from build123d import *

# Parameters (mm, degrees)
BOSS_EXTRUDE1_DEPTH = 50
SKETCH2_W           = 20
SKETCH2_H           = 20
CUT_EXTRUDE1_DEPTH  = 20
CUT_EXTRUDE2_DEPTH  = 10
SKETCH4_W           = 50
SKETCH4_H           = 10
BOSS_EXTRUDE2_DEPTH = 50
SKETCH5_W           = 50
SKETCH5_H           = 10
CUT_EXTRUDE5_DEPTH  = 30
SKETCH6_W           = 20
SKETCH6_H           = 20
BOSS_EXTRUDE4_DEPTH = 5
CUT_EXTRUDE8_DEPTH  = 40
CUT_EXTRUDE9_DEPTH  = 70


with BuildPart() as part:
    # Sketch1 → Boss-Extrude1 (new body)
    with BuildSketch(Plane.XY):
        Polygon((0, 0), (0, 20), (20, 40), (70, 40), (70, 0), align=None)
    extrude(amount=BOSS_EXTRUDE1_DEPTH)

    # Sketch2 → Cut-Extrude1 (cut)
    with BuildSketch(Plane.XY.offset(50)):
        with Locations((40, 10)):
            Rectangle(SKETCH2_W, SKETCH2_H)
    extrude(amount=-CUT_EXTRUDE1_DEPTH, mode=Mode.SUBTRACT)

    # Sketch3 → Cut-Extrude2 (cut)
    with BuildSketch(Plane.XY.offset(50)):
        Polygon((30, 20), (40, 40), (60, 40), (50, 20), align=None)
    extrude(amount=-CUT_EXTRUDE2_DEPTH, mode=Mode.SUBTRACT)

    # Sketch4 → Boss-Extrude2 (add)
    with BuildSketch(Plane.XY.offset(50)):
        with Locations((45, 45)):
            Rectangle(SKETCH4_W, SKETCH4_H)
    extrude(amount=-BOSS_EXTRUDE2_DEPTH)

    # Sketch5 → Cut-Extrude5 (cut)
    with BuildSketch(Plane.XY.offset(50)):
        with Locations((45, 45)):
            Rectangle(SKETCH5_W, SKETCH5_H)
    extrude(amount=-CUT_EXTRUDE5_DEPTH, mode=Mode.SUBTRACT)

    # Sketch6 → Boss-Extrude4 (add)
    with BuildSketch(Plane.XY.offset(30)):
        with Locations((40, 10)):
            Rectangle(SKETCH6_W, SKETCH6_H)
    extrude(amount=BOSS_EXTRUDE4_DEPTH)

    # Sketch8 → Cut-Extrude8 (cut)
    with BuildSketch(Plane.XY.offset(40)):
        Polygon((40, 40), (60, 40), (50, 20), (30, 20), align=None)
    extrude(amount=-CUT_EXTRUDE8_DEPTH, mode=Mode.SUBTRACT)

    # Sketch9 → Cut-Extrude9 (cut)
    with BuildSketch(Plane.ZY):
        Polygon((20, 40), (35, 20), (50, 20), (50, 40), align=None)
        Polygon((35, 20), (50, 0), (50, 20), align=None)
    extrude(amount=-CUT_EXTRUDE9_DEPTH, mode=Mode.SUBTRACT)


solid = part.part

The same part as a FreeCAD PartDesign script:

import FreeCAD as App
import Part
import Sketcher
from FreeCAD import Vector

doc = App.newDocument("Part")
body = doc.addObject("PartDesign::Body", "Body")

# Sketch on XY plane
sketch1 = doc.addObject("Sketcher::SketchObject", "Sketch")
body.addObject(sketch1)
sketch1.AttachmentSupport = (doc.XY_Plane, [""])
sketch1.MapMode = "FlatFace"
sketch1.addGeometry(Part.LineSegment(Vector(0, 20, 0), Vector(0, 0, 0)), False)
sketch1.addGeometry(Part.LineSegment(Vector(0, 0, 0), Vector(70, 0, 0)), False)
sketch1.addGeometry(Part.LineSegment(Vector(70, 0, 0), Vector(70, 40, 0)), False)
sketch1.addGeometry(Part.LineSegment(Vector(70, 40, 0), Vector(20, 40, 0)), False)
sketch1.addGeometry(Part.LineSegment(Vector(20, 40, 0), Vector(0, 20, 0)), False)
sketch1.addConstraint(Sketcher.Constraint("Coincident", 0, 2, 1, 1))
sketch1.addConstraint(Sketcher.Constraint("Coincident", 1, 2, 2, 1))
sketch1.addConstraint(Sketcher.Constraint("Coincident", 2, 2, 3, 1))
sketch1.addConstraint(Sketcher.Constraint("Coincident", 3, 2, 4, 1))
sketch1.addConstraint(Sketcher.Constraint("Coincident", 4, 2, 0, 1))
sketch1.addConstraint(Sketcher.Constraint("Vertical", 0))
sketch1.addConstraint(Sketcher.Constraint("Horizontal", 1))
sketch1.addConstraint(Sketcher.Constraint("Vertical", 2))
sketch1.addConstraint(Sketcher.Constraint("Horizontal", 3))
sketch1.addConstraint(Sketcher.Constraint("Coincident", 0, 2, -1, 1))
sketch1.addConstraint(Sketcher.Constraint("DistanceX", 1, 1, 1, 2, 70.0))
sketch1.addConstraint(Sketcher.Constraint("DistanceX", 3, 2, 3, 1, 50.0))
sketch1.addConstraint(Sketcher.Constraint("DistanceY", 0, 2, 0, 1, 20.0))
sketch1.addConstraint(Sketcher.Constraint("DistanceY", 2, 1, 2, 2, 40.0))
pad1 = doc.addObject("PartDesign::Pad", "Pad")
body.addObject(pad1)
pad1.Profile = sketch1
pad1.Length = 50

# Sketch on XY plane
sketch2 = doc.addObject("Sketcher::SketchObject", "Sketch001")
body.addObject(sketch2)
sketch2.AttachmentSupport = (doc.XY_Plane, [""])
sketch2.MapMode = "FlatFace"
sketch2.AttachmentOffset = App.Placement(Vector(0, 0, 50), App.Rotation())
sketch2.addGeometry(Part.LineSegment(Vector(30, 20, 0), Vector(30, 0, 0)), False)
sketch2.addGeometry(Part.LineSegment(Vector(30, 0, 0), Vector(50, 0, 0)), False)
sketch2.addGeometry(Part.LineSegment(Vector(50, 0, 0), Vector(50, 20, 0)), False)
sketch2.addGeometry(Part.LineSegment(Vector(50, 20, 0), Vector(30, 20, 0)), False)
sketch2.addConstraint(Sketcher.Constraint("Coincident", 0, 2, 1, 1))
sketch2.addConstraint(Sketcher.Constraint("Coincident", 1, 2, 2, 1))
sketch2.addConstraint(Sketcher.Constraint("Coincident", 2, 2, 3, 1))
sketch2.addConstraint(Sketcher.Constraint("Coincident", 3, 2, 0, 1))
sketch2.addConstraint(Sketcher.Constraint("Vertical", 0))
sketch2.addConstraint(Sketcher.Constraint("Horizontal", 1))
sketch2.addConstraint(Sketcher.Constraint("Vertical", 2))
sketch2.addConstraint(Sketcher.Constraint("Horizontal", 3))
sketch2.addConstraint(Sketcher.Constraint("PointOnObject", 0, 2, -1))
sketch2.addConstraint(Sketcher.Constraint("Equal", 3, 0))
sketch2.addConstraint(Sketcher.Constraint("DistanceX", 1, 1, 1, 2, 20.0))
sketch2.addConstraint(Sketcher.Constraint("DistanceX", -1, 1, 0, 2, 30.0))
pocket1 = doc.addObject("PartDesign::Pocket", "Pocket")
body.addObject(pocket1)
pocket1.Profile = sketch2
pocket1.Length = 20

# Sketch on XY plane
sketch3 = doc.addObject("Sketcher::SketchObject", "Sketch002")
body.addObject(sketch3)
sketch3.AttachmentSupport = (doc.XY_Plane, [""])
sketch3.MapMode = "FlatFace"
sketch3.AttachmentOffset = App.Placement(Vector(0, 0, 50), App.Rotation())
sketch3.addGeometry(Part.LineSegment(Vector(40, 40, 0), Vector(30, 20, 0)), False)
sketch3.addGeometry(Part.LineSegment(Vector(30, 20, 0), Vector(50, 20, 0)), False)
sketch3.addGeometry(Part.LineSegment(Vector(50, 20, 0), Vector(60, 40, 0)), False)
sketch3.addGeometry(Part.LineSegment(Vector(60, 40, 0), Vector(40, 40, 0)), False)
sketch3.addConstraint(Sketcher.Constraint("Coincident", 0, 2, 1, 1))
sketch3.addConstraint(Sketcher.Constraint("Coincident", 1, 2, 2, 1))
sketch3.addConstraint(Sketcher.Constraint("Coincident", 2, 2, 3, 1))
sketch3.addConstraint(Sketcher.Constraint("Coincident", 3, 2, 0, 1))
sketch3.addConstraint(Sketcher.Constraint("Horizontal", 1))
sketch3.addConstraint(Sketcher.Constraint("Horizontal", 3))
sketch3.addConstraint(Sketcher.Constraint("Parallel", 0, 2))
sketch3.addConstraint(Sketcher.Constraint("DistanceX", 1, 1, 1, 2, 20.0))
sketch3.addConstraint(Sketcher.Constraint("DistanceX", -1, 1, 0, 2, 30.0))
sketch3.addConstraint(Sketcher.Constraint("DistanceY", -1, 1, 0, 2, 20.0))
sketch3.addConstraint(Sketcher.Constraint("DistanceX", -1, 1, 2, 2, 60.0))
sketch3.addConstraint(Sketcher.Constraint("DistanceY", -1, 1, 2, 2, 40.0))
pocket2 = doc.addObject("PartDesign::Pocket", "Pocket001")
body.addObject(pocket2)
pocket2.Profile = sketch3
pocket2.Length = 10

# Sketch on XY plane
sketch4 = doc.addObject("Sketcher::SketchObject", "Sketch003")
body.addObject(sketch4)
sketch4.AttachmentSupport = (doc.XY_Plane, [""])
sketch4.MapMode = "FlatFace"
sketch4.AttachmentOffset = App.Placement(Vector(0, 0, 50), App.Rotation())
sketch4.addGeometry(Part.LineSegment(Vector(20, 50, 0), Vector(20, 40, 0)), False)
sketch4.addGeometry(Part.LineSegment(Vector(20, 40, 0), Vector(70, 40, 0)), False)
sketch4.addGeometry(Part.LineSegment(Vector(70, 40, 0), Vector(70, 50, 0)), False)
sketch4.addGeometry(Part.LineSegment(Vector(70, 50, 0), Vector(20, 50, 0)), False)
sketch4.addConstraint(Sketcher.Constraint("Coincident", 0, 2, 1, 1))
sketch4.addConstraint(Sketcher.Constraint("Coincident", 1, 2, 2, 1))
sketch4.addConstraint(Sketcher.Constraint("Coincident", 2, 2, 3, 1))
sketch4.addConstraint(Sketcher.Constraint("Coincident", 3, 2, 0, 1))
sketch4.addConstraint(Sketcher.Constraint("Vertical", 0))
sketch4.addConstraint(Sketcher.Constraint("Horizontal", 1))
sketch4.addConstraint(Sketcher.Constraint("Vertical", 2))
sketch4.addConstraint(Sketcher.Constraint("Horizontal", 3))
sketch4.addConstraint(Sketcher.Constraint("DistanceX", 1, 1, 1, 2, 50.0))
sketch4.addConstraint(Sketcher.Constraint("DistanceY", 0, 2, 0, 1, 10.0))
sketch4.addConstraint(Sketcher.Constraint("DistanceX", -1, 1, 0, 2, 20.0))
sketch4.addConstraint(Sketcher.Constraint("DistanceY", -1, 1, 0, 2, 40.0))
pad2 = doc.addObject("PartDesign::Pad", "Pad001")
body.addObject(pad2)
pad2.Profile = sketch4
pad2.Length = 50
pad2.Reversed = True

# Sketch on XY plane
sketch5 = doc.addObject("Sketcher::SketchObject", "Sketch004")
body.addObject(sketch5)
sketch5.AttachmentSupport = (doc.XY_Plane, [""])
sketch5.MapMode = "FlatFace"
sketch5.AttachmentOffset = App.Placement(Vector(0, 0, 50), App.Rotation())
sketch5.addGeometry(Part.LineSegment(Vector(20, 50, 0), Vector(20, 40, 0)), False)
sketch5.addGeometry(Part.LineSegment(Vector(20, 40, 0), Vector(70, 40, 0)), False)
sketch5.addGeometry(Part.LineSegment(Vector(70, 40, 0), Vector(70, 50, 0)), False)
sketch5.addGeometry(Part.LineSegment(Vector(70, 50, 0), Vector(20, 50, 0)), False)
sketch5.addConstraint(Sketcher.Constraint("Coincident", 0, 2, 1, 1))
sketch5.addConstraint(Sketcher.Constraint("Coincident", 1, 2, 2, 1))
sketch5.addConstraint(Sketcher.Constraint("Coincident", 2, 2, 3, 1))
sketch5.addConstraint(Sketcher.Constraint("Coincident", 3, 2, 0, 1))
sketch5.addConstraint(Sketcher.Constraint("Vertical", 0))
sketch5.addConstraint(Sketcher.Constraint("Horizontal", 1))
sketch5.addConstraint(Sketcher.Constraint("Vertical", 2))
sketch5.addConstraint(Sketcher.Constraint("Horizontal", 3))
sketch5.addConstraint(Sketcher.Constraint("DistanceX", 1, 1, 1, 2, 50.0))
sketch5.addConstraint(Sketcher.Constraint("DistanceY", 0, 2, 0, 1, 10.0))
sketch5.addConstraint(Sketcher.Constraint("DistanceX", -1, 1, 0, 2, 20.0))
sketch5.addConstraint(Sketcher.Constraint("DistanceY", -1, 1, 0, 2, 40.0))
pocket3 = doc.addObject("PartDesign::Pocket", "Pocket002")
body.addObject(pocket3)
pocket3.Profile = sketch5
pocket3.Length = 30

# Sketch on XY plane
sketch6 = doc.addObject("Sketcher::SketchObject", "Sketch005")
body.addObject(sketch6)
sketch6.AttachmentSupport = (doc.XY_Plane, [""])
sketch6.MapMode = "FlatFace"
sketch6.AttachmentOffset = App.Placement(Vector(0, 0, 30), App.Rotation())
sketch6.addGeometry(Part.LineSegment(Vector(30, 20, 0), Vector(30, 0, 0)), False)
sketch6.addGeometry(Part.LineSegment(Vector(30, 0, 0), Vector(50, 0, 0)), False)
sketch6.addGeometry(Part.LineSegment(Vector(50, 0, 0), Vector(50, 20, 0)), False)
sketch6.addGeometry(Part.LineSegment(Vector(50, 20, 0), Vector(30, 20, 0)), False)
sketch6.addConstraint(Sketcher.Constraint("Coincident", 0, 2, 1, 1))
sketch6.addConstraint(Sketcher.Constraint("Coincident", 1, 2, 2, 1))
sketch6.addConstraint(Sketcher.Constraint("Coincident", 2, 2, 3, 1))
sketch6.addConstraint(Sketcher.Constraint("Coincident", 3, 2, 0, 1))
sketch6.addConstraint(Sketcher.Constraint("Vertical", 0))
sketch6.addConstraint(Sketcher.Constraint("Horizontal", 1))
sketch6.addConstraint(Sketcher.Constraint("Vertical", 2))
sketch6.addConstraint(Sketcher.Constraint("Horizontal", 3))
sketch6.addConstraint(Sketcher.Constraint("PointOnObject", 0, 2, -1))
sketch6.addConstraint(Sketcher.Constraint("Equal", 3, 0))
sketch6.addConstraint(Sketcher.Constraint("DistanceX", 1, 1, 1, 2, 20.0))
sketch6.addConstraint(Sketcher.Constraint("DistanceX", -1, 1, 0, 2, 30.0))
pad3 = doc.addObject("PartDesign::Pad", "Pad002")
body.addObject(pad3)
pad3.Profile = sketch6
pad3.Length = 5

# Sketch on XY plane
sketch7 = doc.addObject("Sketcher::SketchObject", "Sketch006")
body.addObject(sketch7)
sketch7.AttachmentSupport = (doc.XY_Plane, [""])
sketch7.MapMode = "FlatFace"
sketch7.AttachmentOffset = App.Placement(Vector(0, 0, 40), App.Rotation())
sketch7.addGeometry(Part.LineSegment(Vector(60, 40, 0), Vector(40, 40, 0)), False)
sketch7.addGeometry(Part.LineSegment(Vector(40, 40, 0), Vector(30, 20, 0)), False)
sketch7.addGeometry(Part.LineSegment(Vector(30, 20, 0), Vector(50, 20, 0)), False)
sketch7.addGeometry(Part.LineSegment(Vector(50, 20, 0), Vector(60, 40, 0)), False)
sketch7.addConstraint(Sketcher.Constraint("Coincident", 0, 2, 1, 1))
sketch7.addConstraint(Sketcher.Constraint("Coincident", 1, 2, 2, 1))
sketch7.addConstraint(Sketcher.Constraint("Coincident", 2, 2, 3, 1))
sketch7.addConstraint(Sketcher.Constraint("Coincident", 3, 2, 0, 1))
sketch7.addConstraint(Sketcher.Constraint("Horizontal", 0))
sketch7.addConstraint(Sketcher.Constraint("Horizontal", 2))
sketch7.addConstraint(Sketcher.Constraint("Parallel", 1, 3))
sketch7.addConstraint(Sketcher.Constraint("DistanceX", 0, 2, 0, 1, 20.0))
sketch7.addConstraint(Sketcher.Constraint("DistanceX", -1, 1, 0, 2, 40.0))
sketch7.addConstraint(Sketcher.Constraint("DistanceY", -1, 1, 0, 2, 40.0))
sketch7.addConstraint(Sketcher.Constraint("DistanceX", -1, 1, 1, 2, 30.0))
sketch7.addConstraint(Sketcher.Constraint("DistanceY", -1, 1, 1, 2, 20.0))
pocket4 = doc.addObject("PartDesign::Pocket", "Pocket003")
body.addObject(pocket4)
pocket4.Profile = sketch7
pocket4.Length = 40

# Sketch on YZ plane
sketch8 = doc.addObject("Sketcher::SketchObject", "Sketch007")
body.addObject(sketch8)
sketch8.AttachmentSupport = (doc.YZ_Plane, [""])
sketch8.MapMode = "FlatFace"
sketch8.addGeometry(Part.LineSegment(Vector(40, 20, 0), Vector(0, 50, 0)), False)
sketch8.addGeometry(Part.LineSegment(Vector(0, 50, 0), Vector(40, 50, 0)), False)
sketch8.addGeometry(Part.LineSegment(Vector(40, 50, 0), Vector(40, 20, 0)), False)
sketch8.addConstraint(Sketcher.Constraint("Coincident", 0, 2, 1, 1))
sketch8.addConstraint(Sketcher.Constraint("Coincident", 1, 2, 2, 1))
sketch8.addConstraint(Sketcher.Constraint("Coincident", 2, 2, 0, 1))
sketch8.addConstraint(Sketcher.Constraint("Horizontal", 1))
sketch8.addConstraint(Sketcher.Constraint("Vertical", 2))
sketch8.addConstraint(Sketcher.Constraint("PointOnObject", 0, 2, -2))
sketch8.addConstraint(Sketcher.Constraint("DistanceX", 1, 1, 1, 2, 40.0))
sketch8.addConstraint(Sketcher.Constraint("DistanceY", 2, 2, 2, 1, 30.0))
sketch8.addConstraint(Sketcher.Constraint("DistanceY", -1, 1, 0, 2, 50.0))
pocket5 = doc.addObject("PartDesign::Pocket", "Pocket004")
body.addObject(pocket5)
pocket5.Profile = sketch8
pocket5.Length = 70
pocket5.Reversed = True

doc.recompute()
